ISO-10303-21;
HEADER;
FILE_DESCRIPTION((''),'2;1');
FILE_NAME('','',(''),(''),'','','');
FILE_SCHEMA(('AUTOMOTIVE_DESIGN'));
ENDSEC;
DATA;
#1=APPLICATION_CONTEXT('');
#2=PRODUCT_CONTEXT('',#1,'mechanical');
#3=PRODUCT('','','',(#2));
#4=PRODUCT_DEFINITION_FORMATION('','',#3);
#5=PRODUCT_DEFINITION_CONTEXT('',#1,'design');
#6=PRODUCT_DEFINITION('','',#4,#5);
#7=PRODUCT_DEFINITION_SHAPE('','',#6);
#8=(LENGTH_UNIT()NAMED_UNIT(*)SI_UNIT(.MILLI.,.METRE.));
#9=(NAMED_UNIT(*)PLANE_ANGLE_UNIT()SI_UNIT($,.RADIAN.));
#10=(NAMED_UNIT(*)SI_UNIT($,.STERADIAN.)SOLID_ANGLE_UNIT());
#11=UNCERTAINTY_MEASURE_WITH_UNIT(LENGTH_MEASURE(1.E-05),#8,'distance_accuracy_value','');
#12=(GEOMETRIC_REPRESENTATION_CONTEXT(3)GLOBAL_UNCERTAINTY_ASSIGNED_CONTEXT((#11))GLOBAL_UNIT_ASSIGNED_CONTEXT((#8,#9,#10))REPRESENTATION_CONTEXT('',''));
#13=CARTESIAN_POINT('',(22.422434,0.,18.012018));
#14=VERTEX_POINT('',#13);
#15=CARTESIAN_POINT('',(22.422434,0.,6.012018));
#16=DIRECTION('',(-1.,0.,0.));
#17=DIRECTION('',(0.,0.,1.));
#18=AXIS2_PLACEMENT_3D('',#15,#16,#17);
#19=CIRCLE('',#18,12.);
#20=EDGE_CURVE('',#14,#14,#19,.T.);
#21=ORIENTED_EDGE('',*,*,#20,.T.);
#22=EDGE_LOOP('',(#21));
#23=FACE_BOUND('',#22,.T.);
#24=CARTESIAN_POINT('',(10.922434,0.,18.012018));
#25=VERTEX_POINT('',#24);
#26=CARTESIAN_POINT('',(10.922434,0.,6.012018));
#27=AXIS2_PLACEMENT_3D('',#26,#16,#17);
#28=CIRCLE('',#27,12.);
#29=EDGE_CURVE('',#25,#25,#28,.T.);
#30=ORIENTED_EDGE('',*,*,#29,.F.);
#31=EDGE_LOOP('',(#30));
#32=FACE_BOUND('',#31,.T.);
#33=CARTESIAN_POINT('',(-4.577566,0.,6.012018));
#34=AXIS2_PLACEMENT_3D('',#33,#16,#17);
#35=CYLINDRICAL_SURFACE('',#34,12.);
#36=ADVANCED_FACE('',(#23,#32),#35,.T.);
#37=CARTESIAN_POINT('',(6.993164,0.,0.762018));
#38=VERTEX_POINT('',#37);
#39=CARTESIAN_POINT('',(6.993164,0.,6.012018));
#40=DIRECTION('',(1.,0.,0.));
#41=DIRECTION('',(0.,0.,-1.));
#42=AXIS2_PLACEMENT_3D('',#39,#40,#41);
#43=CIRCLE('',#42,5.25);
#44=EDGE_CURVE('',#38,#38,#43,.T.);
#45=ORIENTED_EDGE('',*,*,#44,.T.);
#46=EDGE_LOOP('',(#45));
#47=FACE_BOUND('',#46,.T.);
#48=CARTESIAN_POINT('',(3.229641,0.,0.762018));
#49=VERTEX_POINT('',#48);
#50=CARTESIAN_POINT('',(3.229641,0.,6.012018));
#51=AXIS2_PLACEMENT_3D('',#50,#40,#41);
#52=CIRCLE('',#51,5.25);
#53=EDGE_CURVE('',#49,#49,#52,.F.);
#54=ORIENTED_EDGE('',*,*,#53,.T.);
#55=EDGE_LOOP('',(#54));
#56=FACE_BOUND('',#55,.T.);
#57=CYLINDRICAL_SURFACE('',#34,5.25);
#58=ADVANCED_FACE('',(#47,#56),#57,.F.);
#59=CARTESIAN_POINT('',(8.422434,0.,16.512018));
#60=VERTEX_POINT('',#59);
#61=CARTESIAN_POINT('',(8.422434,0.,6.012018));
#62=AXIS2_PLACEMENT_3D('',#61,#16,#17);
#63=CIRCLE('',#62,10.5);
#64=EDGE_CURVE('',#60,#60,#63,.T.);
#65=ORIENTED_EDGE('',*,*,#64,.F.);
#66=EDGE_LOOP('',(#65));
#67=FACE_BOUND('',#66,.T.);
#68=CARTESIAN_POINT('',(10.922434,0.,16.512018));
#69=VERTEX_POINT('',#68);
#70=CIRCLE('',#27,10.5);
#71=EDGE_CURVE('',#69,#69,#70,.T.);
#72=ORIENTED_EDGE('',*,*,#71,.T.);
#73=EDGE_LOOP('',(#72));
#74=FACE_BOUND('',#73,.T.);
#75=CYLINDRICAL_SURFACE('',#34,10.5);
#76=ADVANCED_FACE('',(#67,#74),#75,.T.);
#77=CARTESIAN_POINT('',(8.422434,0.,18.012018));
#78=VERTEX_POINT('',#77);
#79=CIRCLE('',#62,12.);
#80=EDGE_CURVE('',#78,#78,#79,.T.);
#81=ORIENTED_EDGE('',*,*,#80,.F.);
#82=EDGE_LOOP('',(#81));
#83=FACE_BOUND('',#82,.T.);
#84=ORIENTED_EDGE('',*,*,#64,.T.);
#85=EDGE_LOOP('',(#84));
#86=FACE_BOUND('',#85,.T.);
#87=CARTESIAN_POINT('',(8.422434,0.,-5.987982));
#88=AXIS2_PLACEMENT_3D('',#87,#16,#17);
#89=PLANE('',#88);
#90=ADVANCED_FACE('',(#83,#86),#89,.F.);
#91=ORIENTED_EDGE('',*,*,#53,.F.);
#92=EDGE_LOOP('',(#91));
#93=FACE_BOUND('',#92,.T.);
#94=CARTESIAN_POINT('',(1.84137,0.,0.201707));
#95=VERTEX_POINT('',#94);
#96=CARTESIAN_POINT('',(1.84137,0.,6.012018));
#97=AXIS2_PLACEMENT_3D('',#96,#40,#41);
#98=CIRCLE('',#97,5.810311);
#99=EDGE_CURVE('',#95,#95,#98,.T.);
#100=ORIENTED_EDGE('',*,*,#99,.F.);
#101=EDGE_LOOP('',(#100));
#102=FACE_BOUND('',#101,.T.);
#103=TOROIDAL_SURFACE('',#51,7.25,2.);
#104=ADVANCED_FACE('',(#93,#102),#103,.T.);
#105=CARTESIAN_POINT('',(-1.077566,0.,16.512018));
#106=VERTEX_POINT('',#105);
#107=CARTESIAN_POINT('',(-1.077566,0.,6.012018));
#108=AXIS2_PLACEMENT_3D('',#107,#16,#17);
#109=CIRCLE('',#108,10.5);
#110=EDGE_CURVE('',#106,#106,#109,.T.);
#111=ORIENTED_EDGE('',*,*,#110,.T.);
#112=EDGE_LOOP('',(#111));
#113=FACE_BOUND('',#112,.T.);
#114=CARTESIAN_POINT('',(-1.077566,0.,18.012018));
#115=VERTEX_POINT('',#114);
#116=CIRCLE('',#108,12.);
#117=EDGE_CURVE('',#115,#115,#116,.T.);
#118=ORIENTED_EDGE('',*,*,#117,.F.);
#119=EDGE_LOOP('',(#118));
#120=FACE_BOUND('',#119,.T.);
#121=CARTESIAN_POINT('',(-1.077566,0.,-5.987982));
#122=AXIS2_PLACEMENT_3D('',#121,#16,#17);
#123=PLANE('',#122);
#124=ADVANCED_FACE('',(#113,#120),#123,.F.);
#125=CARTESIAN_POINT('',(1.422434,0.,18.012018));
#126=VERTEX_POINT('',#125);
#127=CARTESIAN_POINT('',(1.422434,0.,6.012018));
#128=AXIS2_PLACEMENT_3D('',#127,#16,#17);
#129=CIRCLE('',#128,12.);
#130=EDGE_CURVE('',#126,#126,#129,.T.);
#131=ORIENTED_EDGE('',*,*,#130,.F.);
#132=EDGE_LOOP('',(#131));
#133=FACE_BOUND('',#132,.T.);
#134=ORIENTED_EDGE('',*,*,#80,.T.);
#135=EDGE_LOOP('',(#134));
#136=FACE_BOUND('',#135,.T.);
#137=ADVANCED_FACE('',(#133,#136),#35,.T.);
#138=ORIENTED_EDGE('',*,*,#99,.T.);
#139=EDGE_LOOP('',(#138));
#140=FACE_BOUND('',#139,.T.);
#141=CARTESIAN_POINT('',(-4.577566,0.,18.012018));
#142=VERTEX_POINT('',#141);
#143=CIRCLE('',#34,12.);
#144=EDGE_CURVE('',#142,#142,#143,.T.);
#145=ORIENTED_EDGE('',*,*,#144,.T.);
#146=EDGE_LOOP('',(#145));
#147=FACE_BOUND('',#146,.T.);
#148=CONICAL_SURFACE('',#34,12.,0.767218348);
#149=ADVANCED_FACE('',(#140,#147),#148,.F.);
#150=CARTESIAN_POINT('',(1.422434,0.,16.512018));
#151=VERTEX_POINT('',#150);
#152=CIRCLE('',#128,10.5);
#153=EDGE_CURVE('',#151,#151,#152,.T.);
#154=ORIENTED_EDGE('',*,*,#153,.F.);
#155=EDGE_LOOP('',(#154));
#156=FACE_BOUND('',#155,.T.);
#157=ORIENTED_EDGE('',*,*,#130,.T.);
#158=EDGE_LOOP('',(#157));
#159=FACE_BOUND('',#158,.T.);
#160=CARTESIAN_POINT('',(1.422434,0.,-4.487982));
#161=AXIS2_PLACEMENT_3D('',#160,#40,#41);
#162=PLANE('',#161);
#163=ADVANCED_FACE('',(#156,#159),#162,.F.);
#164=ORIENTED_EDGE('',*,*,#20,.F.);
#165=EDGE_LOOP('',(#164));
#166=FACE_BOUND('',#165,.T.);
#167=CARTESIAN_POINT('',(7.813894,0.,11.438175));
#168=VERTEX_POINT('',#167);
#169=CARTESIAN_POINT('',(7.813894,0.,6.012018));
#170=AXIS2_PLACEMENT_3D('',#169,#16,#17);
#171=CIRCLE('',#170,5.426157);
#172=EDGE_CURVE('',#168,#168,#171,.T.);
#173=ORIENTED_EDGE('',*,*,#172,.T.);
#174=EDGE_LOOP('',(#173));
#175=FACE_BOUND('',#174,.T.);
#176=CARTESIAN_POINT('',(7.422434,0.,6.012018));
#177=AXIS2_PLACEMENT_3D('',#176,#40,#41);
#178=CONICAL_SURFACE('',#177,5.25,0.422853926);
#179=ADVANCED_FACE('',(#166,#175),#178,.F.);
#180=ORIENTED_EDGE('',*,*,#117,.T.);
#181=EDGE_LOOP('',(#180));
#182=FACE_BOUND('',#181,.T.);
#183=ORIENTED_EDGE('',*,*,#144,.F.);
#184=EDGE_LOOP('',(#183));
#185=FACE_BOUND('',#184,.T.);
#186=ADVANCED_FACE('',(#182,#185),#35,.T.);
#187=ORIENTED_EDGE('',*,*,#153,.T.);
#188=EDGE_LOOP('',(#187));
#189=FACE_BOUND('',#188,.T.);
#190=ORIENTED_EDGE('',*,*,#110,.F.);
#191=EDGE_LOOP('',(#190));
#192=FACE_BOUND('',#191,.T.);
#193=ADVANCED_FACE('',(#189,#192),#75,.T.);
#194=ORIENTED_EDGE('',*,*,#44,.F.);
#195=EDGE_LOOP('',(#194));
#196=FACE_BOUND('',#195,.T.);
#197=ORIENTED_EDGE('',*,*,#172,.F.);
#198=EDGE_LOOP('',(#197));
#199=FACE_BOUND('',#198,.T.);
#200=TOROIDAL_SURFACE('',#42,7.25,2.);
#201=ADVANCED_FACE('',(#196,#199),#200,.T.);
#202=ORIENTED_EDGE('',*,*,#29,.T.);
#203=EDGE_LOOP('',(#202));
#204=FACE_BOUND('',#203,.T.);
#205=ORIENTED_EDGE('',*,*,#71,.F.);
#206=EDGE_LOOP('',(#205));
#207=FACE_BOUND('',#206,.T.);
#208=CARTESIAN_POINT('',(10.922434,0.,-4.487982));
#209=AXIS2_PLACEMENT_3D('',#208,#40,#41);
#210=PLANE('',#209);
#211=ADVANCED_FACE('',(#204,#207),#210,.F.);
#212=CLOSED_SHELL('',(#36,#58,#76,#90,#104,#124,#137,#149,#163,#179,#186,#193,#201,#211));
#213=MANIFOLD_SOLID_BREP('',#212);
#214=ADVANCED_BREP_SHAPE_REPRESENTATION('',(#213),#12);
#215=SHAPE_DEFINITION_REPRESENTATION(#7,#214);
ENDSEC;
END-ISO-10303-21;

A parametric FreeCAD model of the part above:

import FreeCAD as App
import Part
import Sketcher
from FreeCAD import Vector


def edges_at(feature, points):
    """Names of the edges that pass closest to the given points."""
    edges = feature.Shape.Edges
    near = lambda p: min(range(len(edges)), key=lambda i: edges[i].distToShape(Part.Vertex(*p))[0])
    return sorted({f"Edge{near(p) + 1}" for p in points})

doc = App.newDocument("Part")
body = doc.addObject("PartDesign::Body", "Body")

# Sketch on XZ plane
sketch1 = body.newObject("Sketcher::SketchObject", "Sketch")
sketch1.AttachmentSupport = (doc.getObject("XZ_Plane"), [""])
sketch1.MapMode = "FlatFace"
sketch1.addGeometry(Part.LineSegment(Vector(-1.1, -6, 0), Vector(-4.6, -6, 0)), False)
sketch1.addGeometry(Part.LineSegment(Vector(-4.6, -6, 0), Vector(2.4, 0.8, 0)), False)
sketch1.addGeometry(Part.LineSegment(Vector(2.4, 0.8, 0), Vector(7.4, 0.8, 0)), False)
sketch1.addGeometry(Part.LineSegment(Vector(7.4, 0.8, 0), Vector(22.4, -6, 0)), False)
sketch1.addGeometry(Part.LineSegment(Vector(22.4, -6, 0), Vector(10.9, -6, 0)), False)
sketch1.addGeometry(Part.LineSegment(Vector(10.9, -6, 0), Vector(10.9, -4.5, 0)), False)
sketch1.addGeometry(Part.LineSegment(Vector(10.9, -4.5, 0), Vector(8.4, -4.5, 0)), False)
sketch1.addGeometry(Part.LineSegment(Vector(8.4, -4.5, 0), Vector(8.4, -6, 0)), False)
sketch1.addGeometry(Part.LineSegment(Vector(8.4, -6, 0), Vector(1.4, -6, 0)), False)
sketch1.addGeometry(Part.LineSegment(Vector(1.4, -6, 0), Vector(1.4, -4.5, 0)), False)
sketch1.addGeometry(Part.LineSegment(Vector(1.4, -4.5, 0), Vector(-1.1, -4.5, 0)), False)
sketch1.addGeometry(Part.LineSegment(Vector(-1.1, -4.5, 0), Vector(-1.1, -6, 0)), False)
sketch1.addGeometry(Part.LineSegment(Vector(-4.6, 6, 0), Vector(22.4, 6, 0)), True)  # axis
sketch1.addConstraint(Sketcher.Constraint("Coincident", 0, 2, 1, 1))
sketch1.addConstraint(Sketcher.Constraint("Coincident", 1, 2, 2, 1))
sketch1.addConstraint(Sketcher.Constraint("Coincident", 2, 2, 3, 1))
sketch1.addConstraint(Sketcher.Constraint("Coincident", 3, 2, 4, 1))
sketch1.addConstraint(Sketcher.Constraint("Coincident", 4, 2, 5, 1))
sketch1.addConstraint(Sketcher.Constraint("Coincident", 5, 2, 6, 1))
sketch1.addConstraint(Sketcher.Constraint("Coincident", 6, 2, 7, 1))
sketch1.addConstraint(Sketcher.Constraint("Coincident", 7, 2, 8, 1))
sketch1.addConstraint(Sketcher.Constraint("Coincident", 8, 2, 9, 1))
sketch1.addConstraint(Sketcher.Constraint("Coincident", 9, 2, 10, 1))
sketch1.addConstraint(Sketcher.Constraint("Coincident", 10, 2, 11, 1))
sketch1.addConstraint(Sketcher.Constraint("Coincident", 11, 2, 0, 1))
sketch1.addConstraint(Sketcher.Constraint("Horizontal", 0))
sketch1.addConstraint(Sketcher.Constraint("Horizontal", 2))
sketch1.addConstraint(Sketcher.Constraint("Horizontal", 4))
sketch1.addConstraint(Sketcher.Constraint("Vertical", 5))
sketch1.addConstraint(Sketcher.Constraint("Horizontal", 6))
sketch1.addConstraint(Sketcher.Constraint("Vertical", 7))
sketch1.addConstraint(Sketcher.Constraint("Horizontal", 8))
sketch1.addConstraint(Sketcher.Constraint("Vertical", 9))
sketch1.addConstraint(Sketcher.Constraint("Horizontal", 10))
sketch1.addConstraint(Sketcher.Constraint("Vertical", 11))
sketch1.addConstraint(Sketcher.Constraint("Horizontal", 12))
sketch1.addConstraint(Sketcher.Constraint("Horizontal", 0, 2, 3, 2))
sketch1.addConstraint(Sketcher.Constraint("Horizontal", 4, 2, 7, 2))
sketch1.addConstraint(Sketcher.Constraint("Horizontal", 6, 2, 9, 2))
sketch1.addConstraint(Sketcher.Constraint("Vertical", 0, 2, 12, 1))
sketch1.addConstraint(Sketcher.Constraint("Vertical", 3, 2, 12, 2))
sketch1.addConstraint(Sketcher.Constraint("Equal", 6, 10))
sketch1.addConstraint(Sketcher.Constraint("DistanceX", 2, 1, 2, 2, 5.0))
sketch1.addConstraint(Sketcher.Constraint("DistanceX", 8, 2, 8, 1, 7.0))
sketch1.addConstraint(Sketcher.Constraint("DistanceX", 12, 1, 12, 2, 27.0))
sketch1.addConstraint(Sketcher.Constraint("DistanceX", 0, 2, 0, 1, 3.5))
sketch1.addConstraint(Sketcher.Constraint("DistanceX", 4, 2, 4, 1, 11.5))
sketch1.addConstraint(Sketcher.Constraint("DistanceY", 5, 1, 5, 2, 1.5))
sketch1.addConstraint(Sketcher.Constraint("DistanceX", 0, 2, 1, 2, 7.0))
sketch1.addConstraint(Sketcher.Constraint("DistanceY", 0, 2, 12, 1, 12.0))
sketch1.addConstraint(Sketcher.Constraint("DistanceY", 0, 2, 1, 2, 6.75))
sketch1.addConstraint(Sketcher.Constraint("DistanceY", 0, 2, -1, 1, 5.987982))
sketch1.addConstraint(Sketcher.Constraint("DistanceX", 0, 2, -1, 1, 4.577566))
revolution = body.newObject("PartDesign::Revolution", "Revolution")
revolution.Profile = sketch1
revolution.ReferenceAxis = (sketch1, ["Axis0"])
revolution.Angle = 360
doc.recompute()

fillet = body.newObject("PartDesign::Fillet", "Fillet")
fillet.Base = (revolution, edges_at(revolution, [(7.422, 0, 11.262), (2.422, 0, 11.262)]))
fillet.Radius = 2

doc.recompute()
